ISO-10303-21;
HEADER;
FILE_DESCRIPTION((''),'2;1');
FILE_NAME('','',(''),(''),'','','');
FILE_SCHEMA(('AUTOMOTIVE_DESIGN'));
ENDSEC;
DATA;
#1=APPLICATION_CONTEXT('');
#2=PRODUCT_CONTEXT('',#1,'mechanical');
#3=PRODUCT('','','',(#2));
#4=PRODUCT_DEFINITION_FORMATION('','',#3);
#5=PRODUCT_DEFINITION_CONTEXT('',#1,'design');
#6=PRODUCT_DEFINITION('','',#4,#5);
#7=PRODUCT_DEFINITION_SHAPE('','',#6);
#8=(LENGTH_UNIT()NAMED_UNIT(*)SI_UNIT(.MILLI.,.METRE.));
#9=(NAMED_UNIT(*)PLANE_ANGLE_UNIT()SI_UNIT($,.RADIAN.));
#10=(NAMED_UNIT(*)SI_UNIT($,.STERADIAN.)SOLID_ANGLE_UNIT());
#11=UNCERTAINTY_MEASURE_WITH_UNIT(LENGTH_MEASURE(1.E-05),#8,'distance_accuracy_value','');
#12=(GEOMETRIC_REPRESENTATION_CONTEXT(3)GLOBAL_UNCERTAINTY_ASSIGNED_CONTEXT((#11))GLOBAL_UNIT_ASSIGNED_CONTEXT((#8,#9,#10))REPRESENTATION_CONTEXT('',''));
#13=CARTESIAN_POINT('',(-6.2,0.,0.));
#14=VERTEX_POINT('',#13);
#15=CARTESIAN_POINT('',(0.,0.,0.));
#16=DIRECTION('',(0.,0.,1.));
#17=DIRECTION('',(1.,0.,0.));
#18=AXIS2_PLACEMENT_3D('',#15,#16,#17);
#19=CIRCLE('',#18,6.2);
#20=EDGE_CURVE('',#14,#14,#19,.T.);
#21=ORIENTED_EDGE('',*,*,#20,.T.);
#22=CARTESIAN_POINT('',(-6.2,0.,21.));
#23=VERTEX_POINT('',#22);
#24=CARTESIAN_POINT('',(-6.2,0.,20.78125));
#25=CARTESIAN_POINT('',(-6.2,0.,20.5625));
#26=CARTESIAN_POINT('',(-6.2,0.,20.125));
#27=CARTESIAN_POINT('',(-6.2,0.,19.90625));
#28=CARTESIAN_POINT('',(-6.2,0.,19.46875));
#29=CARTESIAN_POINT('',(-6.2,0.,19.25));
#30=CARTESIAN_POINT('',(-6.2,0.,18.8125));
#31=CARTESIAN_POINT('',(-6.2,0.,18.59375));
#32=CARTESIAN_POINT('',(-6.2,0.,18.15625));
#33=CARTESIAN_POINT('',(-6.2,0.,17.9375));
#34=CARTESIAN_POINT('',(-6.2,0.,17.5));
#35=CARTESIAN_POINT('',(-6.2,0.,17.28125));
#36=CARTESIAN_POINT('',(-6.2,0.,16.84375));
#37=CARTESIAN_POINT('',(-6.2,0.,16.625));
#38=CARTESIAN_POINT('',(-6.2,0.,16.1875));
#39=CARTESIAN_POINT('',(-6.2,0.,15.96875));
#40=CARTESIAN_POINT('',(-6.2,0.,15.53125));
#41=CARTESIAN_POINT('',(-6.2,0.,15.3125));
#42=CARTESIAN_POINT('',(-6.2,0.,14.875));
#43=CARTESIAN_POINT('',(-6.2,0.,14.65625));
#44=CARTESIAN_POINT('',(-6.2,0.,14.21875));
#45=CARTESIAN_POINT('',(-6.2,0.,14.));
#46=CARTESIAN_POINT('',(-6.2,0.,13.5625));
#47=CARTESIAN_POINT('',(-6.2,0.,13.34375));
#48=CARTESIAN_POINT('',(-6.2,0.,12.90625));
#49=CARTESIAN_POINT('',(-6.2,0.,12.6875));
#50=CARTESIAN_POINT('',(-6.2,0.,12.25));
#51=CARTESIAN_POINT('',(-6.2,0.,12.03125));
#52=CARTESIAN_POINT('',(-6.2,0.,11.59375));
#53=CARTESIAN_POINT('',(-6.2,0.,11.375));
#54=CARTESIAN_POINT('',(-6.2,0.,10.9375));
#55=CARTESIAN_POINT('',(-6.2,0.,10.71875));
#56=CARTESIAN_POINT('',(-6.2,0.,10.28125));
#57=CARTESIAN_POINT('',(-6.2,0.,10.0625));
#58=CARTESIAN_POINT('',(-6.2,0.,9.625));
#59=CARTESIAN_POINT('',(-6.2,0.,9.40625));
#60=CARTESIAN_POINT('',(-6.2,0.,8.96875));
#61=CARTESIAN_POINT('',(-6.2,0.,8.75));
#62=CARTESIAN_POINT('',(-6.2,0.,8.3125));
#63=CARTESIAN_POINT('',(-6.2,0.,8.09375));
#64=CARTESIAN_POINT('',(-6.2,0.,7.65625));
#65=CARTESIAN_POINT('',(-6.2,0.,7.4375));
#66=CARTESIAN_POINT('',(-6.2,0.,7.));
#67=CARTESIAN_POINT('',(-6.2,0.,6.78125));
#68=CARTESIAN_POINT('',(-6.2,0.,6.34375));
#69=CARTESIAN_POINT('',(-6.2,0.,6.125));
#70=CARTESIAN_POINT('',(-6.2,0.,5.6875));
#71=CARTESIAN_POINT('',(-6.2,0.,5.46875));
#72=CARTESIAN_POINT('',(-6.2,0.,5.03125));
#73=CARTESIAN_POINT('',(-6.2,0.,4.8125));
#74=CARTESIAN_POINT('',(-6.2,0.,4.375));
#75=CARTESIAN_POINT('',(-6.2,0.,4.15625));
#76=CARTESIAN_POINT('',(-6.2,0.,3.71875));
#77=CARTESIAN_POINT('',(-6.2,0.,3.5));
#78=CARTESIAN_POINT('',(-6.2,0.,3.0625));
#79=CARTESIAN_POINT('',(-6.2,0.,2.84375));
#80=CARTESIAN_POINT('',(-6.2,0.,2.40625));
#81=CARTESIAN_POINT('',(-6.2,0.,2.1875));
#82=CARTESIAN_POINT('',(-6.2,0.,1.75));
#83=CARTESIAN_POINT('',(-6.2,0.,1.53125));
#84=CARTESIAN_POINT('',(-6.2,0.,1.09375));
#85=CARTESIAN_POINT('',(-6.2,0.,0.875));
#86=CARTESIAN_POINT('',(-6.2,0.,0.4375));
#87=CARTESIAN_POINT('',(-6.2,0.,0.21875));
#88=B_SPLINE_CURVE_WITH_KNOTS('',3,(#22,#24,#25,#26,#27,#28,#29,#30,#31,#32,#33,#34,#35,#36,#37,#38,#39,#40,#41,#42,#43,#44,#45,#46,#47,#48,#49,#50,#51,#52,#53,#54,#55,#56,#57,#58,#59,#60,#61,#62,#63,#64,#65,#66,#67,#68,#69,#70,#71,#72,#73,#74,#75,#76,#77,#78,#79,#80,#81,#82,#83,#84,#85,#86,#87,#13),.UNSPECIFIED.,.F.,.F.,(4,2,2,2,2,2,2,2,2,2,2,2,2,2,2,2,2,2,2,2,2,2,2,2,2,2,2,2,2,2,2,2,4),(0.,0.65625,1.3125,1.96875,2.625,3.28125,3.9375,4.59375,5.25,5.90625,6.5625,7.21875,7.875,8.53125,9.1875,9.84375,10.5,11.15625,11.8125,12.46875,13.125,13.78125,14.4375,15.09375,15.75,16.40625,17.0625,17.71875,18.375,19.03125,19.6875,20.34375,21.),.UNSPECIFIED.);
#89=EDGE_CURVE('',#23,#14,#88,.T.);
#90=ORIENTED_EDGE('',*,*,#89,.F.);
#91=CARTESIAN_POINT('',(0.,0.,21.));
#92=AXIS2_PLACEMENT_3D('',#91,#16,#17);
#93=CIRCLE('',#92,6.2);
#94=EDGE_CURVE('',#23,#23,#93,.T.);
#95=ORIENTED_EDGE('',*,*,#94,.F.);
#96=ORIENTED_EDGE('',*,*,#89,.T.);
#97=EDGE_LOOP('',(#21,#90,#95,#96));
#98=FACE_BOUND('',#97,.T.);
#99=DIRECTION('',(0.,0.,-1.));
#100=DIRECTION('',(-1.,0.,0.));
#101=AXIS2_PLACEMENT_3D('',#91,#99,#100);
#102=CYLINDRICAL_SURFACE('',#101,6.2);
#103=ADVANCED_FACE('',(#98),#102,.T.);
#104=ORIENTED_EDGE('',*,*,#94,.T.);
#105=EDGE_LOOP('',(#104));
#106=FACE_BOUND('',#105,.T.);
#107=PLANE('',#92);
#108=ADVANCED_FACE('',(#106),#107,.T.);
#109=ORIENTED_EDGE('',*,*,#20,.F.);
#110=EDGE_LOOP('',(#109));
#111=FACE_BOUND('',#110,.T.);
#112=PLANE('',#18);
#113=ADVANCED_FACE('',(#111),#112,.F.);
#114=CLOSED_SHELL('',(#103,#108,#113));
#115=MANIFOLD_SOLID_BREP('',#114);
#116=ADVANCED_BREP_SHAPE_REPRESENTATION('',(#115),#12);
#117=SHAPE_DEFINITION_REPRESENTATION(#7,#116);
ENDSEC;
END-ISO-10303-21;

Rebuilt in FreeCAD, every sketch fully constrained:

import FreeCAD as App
import Part
import Sketcher

V = App.Vector

doc = App.newDocument("Part")
body = doc.addObject("PartDesign::Body", "Body")

# Sketch on XY plane
sketch1 = doc.addObject("Sketcher::SketchObject", "Sketch")
body.addObject(sketch1)
sketch1.AttachmentSupport = (doc.XY_Plane, [""])
sketch1.MapMode = "FlatFace"
sketch1.addGeometry(Part.Circle(V(0, 0, 0), V(0, 0, 1), 6), False)
sketch1.addConstraint(Sketcher.Constraint("Coincident", 0, 3, -1, 1))
sketch1.addConstraint(Sketcher.Constraint("Diameter", 0, 12.4))
pad1 = doc.addObject("PartDesign::Pad", "Pad")
body.addObject(pad1)
pad1.Profile = sketch1
pad1.Length = 21

doc.recompute()
